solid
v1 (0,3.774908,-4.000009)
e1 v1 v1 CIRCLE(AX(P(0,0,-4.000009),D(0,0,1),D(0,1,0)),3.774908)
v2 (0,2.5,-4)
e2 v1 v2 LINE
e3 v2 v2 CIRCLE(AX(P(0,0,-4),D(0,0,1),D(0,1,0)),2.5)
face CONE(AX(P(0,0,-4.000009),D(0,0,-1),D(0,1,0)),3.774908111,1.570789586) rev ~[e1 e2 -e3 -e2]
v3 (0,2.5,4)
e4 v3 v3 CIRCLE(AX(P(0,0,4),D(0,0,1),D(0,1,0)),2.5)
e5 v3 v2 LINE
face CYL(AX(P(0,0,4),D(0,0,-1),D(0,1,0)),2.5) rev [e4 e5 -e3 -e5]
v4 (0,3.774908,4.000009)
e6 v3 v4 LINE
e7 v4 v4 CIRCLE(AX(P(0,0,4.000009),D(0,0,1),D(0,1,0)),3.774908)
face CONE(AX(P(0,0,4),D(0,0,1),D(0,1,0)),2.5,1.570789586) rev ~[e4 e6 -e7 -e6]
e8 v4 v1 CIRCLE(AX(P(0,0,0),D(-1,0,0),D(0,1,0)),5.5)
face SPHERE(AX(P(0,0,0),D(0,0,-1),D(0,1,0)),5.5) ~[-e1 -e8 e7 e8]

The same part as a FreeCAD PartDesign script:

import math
import FreeCAD as App
import Part
import Sketcher
Q = App.Units.Quantity

doc = App.newDocument("Part")
body = doc.addObject("PartDesign::Body", "Body")

# Sketch on YZ plane
sketch1 = body.newObject("Sketcher::SketchObject", "Sketch")
sketch1.AttachmentSupport = (doc.getObject("YZ_Plane"), [""])
sketch1.MapMode = "FlatFace"
sketch1.addGeometry(Part.ArcOfCircle(Part.Circle(App.Vector(0, 0, 0), App.Vector(0, 0, 1), 5.499988), math.radians(-46.658372), math.radians(46.658372)), False)
sketch1.addGeometry(Part.LineSegment(App.Vector(3.7749, 4, 0), App.Vector(2.5, 4, 0)), False)
sketch1.addGeometry(Part.LineSegment(App.Vector(2.5, 4, 0), App.Vector(2.5, -4, 0)), False)
sketch1.addGeometry(Part.LineSegment(App.Vector(2.5, -4, 0), App.Vector(3.7749, -4, 0)), False)
sketch1.addConstraint(Sketcher.Constraint("Coincident", 0, 2, 1, 1))
sketch1.addConstraint(Sketcher.Constraint("Coincident", 1, 2, 2, 1))
sketch1.addConstraint(Sketcher.Constraint("Coincident", 2, 2, 3, 1))
sketch1.addConstraint(Sketcher.Constraint("Coincident", 3, 2, 0, 1))
sketch1.addConstraint(Sketcher.Constraint("Horizontal", 1))
sketch1.addConstraint(Sketcher.Constraint("Vertical", 2))
sketch1.addConstraint(Sketcher.Constraint("Horizontal", 3))
sketch1.addConstraint(Sketcher.Constraint("Coincident", 0, 3, -1, 1))
sketch1.addConstraint(Sketcher.Constraint("Vertical", 0, 2, 3, 2))
sketch1.addConstraint(Sketcher.Constraint("Radius", 0, Q("5.5 mm")))
sketch1.addConstraint(Sketcher.Constraint("DistanceY", 2, 2, 2, 1, Q("8 mm")))
sketch1.addConstraint(Sketcher.Constraint("DistanceX", -1, 1, 1, 2, Q("2.5 mm")))
revolution = body.newObject("PartDesign::Revolution", "Revolution")
revolution.Profile = sketch1
revolution.ReferenceAxis = (sketch1, ["V_Axis"])
revolution.Angle = 360

doc.recompute()
